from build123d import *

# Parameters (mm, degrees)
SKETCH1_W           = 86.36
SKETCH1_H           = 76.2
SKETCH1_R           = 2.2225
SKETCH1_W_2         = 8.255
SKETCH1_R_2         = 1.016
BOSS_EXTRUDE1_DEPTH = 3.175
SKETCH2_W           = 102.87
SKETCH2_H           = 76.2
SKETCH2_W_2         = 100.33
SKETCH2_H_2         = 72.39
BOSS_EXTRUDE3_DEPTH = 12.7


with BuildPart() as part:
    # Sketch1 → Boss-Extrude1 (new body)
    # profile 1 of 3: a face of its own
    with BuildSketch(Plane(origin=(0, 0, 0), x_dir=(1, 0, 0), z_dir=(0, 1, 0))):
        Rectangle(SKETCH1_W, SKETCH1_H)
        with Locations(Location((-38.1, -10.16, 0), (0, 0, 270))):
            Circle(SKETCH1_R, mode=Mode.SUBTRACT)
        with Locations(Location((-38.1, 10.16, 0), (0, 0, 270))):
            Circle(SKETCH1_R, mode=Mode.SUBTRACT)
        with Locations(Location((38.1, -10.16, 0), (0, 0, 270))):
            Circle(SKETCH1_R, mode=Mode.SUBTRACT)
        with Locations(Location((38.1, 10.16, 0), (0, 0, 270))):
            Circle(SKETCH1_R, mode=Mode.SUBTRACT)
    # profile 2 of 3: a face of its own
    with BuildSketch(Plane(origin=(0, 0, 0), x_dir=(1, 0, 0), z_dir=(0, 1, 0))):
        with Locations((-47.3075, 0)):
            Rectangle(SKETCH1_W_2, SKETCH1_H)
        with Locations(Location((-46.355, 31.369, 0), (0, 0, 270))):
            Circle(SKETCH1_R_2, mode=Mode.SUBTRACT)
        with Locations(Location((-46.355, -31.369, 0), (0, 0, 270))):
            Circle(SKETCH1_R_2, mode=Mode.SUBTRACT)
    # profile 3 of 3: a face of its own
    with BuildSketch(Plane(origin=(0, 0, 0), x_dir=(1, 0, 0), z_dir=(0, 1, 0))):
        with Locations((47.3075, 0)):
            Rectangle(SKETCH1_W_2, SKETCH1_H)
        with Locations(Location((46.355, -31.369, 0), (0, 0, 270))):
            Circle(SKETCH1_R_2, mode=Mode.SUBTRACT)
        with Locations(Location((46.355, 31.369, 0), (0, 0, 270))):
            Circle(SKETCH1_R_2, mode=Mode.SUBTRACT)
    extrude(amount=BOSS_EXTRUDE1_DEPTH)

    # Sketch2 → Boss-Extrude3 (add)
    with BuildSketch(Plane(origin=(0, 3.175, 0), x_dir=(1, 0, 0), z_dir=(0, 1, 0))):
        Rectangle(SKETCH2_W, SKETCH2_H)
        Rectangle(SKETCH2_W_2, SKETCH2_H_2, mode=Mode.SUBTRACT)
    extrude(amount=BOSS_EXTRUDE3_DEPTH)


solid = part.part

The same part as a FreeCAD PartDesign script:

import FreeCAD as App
import Part
import Sketcher
Q = App.Units.Quantity


def add_polygon(sketch, points):
    """Adds a closed chain of lines whose ends are joined by coincident constraints."""
    first, n = sketch.GeometryCount, len(points)
    for a, b in zip(points, points[1:] + points[:1]):
        sketch.addGeometry(Part.LineSegment(App.Vector(*a, 0), App.Vector(*b, 0)), False)
    for i in range(n):
        sketch.addConstraint(Sketcher.Constraint("Coincident", first + i, 2, first + (i + 1) % n, 1))

doc = App.newDocument("Part")
params = doc.addObject("Spreadsheet::Sheet", "Params")
for row, (alias, value) in enumerate([
    ("sketch1_diameter", "0.08 in"),
    ("sketch1_height", "3 in"),
    ("sketch1_diameter2", "0.175 in"),
    ("sketch1_width", "4.05 in"),
    ("pad1_length", "0.125 in"),
    ("sketch2_height", "3 in"),
    ("sketch2_width", "4.05 in"),
    ("sketch2_height2", "2.85 in"),
    ("pad2_length", "0.5 in"),
], start=1):
    params.set(f"A{row}", alias)
    params.set(f"B{row}", "=" + value)
    params.setAlias(f"B{row}", alias)

body = doc.addObject("PartDesign::Body", "Body")

# Sketch on XZ plane
sketch1 = body.newObject("Sketcher::SketchObject", "Sketch")
sketch1.AttachmentSupport = (doc.getObject("XZ_Plane"), [""])
sketch1.MapMode = "FlatFace"
add_polygon(sketch1, [(51.4, 38.1), (51.4, -38.1), (-51.4, -38.1), (-51.4, 38.1)])  # lines 0-3
sketch1.addGeometry(Part.Circle(App.Vector(-38.1, 10.2, 0), App.Vector(0, 0, 1), 2.2), False)  # 4
sketch1.addGeometry(Part.Circle(App.Vector(38.1, 10.2, 0), App.Vector(0, 0, 1), 2.2), False)  # 5
sketch1.addGeometry(Part.Circle(App.Vector(-38.1, -10.2, 0), App.Vector(0, 0, 1), 2.2), False)  # 6
sketch1.addGeometry(Part.Circle(App.Vector(38.1, -10.2, 0), App.Vector(0, 0, 1), 2.2), False)  # 7
sketch1.addGeometry(Part.Circle(App.Vector(-46.4, -31.4, 0), App.Vector(0, 0, 1), 1), False)  # 8
sketch1.addGeometry(Part.Circle(App.Vector(-46.4, 31.4, 0), App.Vector(0, 0, 1), 1), False)  # 9
sketch1.addGeometry(Part.Circle(App.Vector(46.4, -31.4, 0), App.Vector(0, 0, 1), 1), False)  # 10
sketch1.addGeometry(Part.Circle(App.Vector(46.4, 31.4, 0), App.Vector(0, 0, 1), 1), False)  # 11
sketch1.addConstraint(Sketcher.Constraint("Vertical", 0))
sketch1.addConstraint(Sketcher.Constraint("Horizontal", 1))
sketch1.addConstraint(Sketcher.Constraint("Vertical", 2))
sketch1.addConstraint(Sketcher.Constraint("Horizontal", 3))
sketch1.addConstraint(Sketcher.Constraint("Equal", 4, 5))
sketch1.addConstraint(Sketcher.Constraint("Equal", 5, 6))
sketch1.addConstraint(Sketcher.Constraint("Equal", 6, 7))
sketch1.addConstraint(Sketcher.Constraint("Equal", 8, 9))
sketch1.addConstraint(Sketcher.Constraint("Equal", 9, 10))
sketch1.addConstraint(Sketcher.Constraint("Equal", 10, 11))
sketch1.addConstraint(Sketcher.Constraint("Symmetric", 5, 3, 6, 3, -1, 1))
sketch1.addConstraint(Sketcher.Constraint("Symmetric", 4, 3, 7, 3, -1, 1))
sketch1.addConstraint(Sketcher.Constraint("Symmetric", 9, 3, 10, 3, -1, 1))
sketch1.addConstraint(Sketcher.Constraint("Symmetric", 8, 3, 11, 3, -1, 1))
sketch1.addConstraint(Sketcher.Constraint("Symmetric", 0, 2, 2, 2, -1, 1))
sketch1.addConstraint(Sketcher.Constraint("Symmetric", 4, 3, 5, 3, -2))
sketch1.addConstraint(Sketcher.Constraint("Symmetric", 8, 3, 10, 3, -2))
sketch1.addConstraint(Sketcher.Constraint("Diameter", 8, Q("0.08 in")))
sketch1.addConstraint(Sketcher.Constraint("DistanceY", 0, 2, 0, 1, Q("3 in")))
sketch1.addConstraint(Sketcher.Constraint("Diameter", 4, Q("0.175 in")))
sketch1.addConstraint(Sketcher.Constraint("DistanceX", 4, 3, 5, 3, Q("3 in")))
sketch1.addConstraint(Sketcher.Constraint("DistanceX", 1, 2, 1, 1, Q("4.05 in")))
sketch1.addConstraint(Sketcher.Constraint("DistanceY", -1, 1, 4, 3, Q("0.4 in")))
sketch1.addConstraint(Sketcher.Constraint("DistanceX", 10, 3, 0, 2, Q("0.2 in")))
sketch1.addConstraint(Sketcher.Constraint("DistanceY", 8, 3, 9, 3, Q("2.47 in")))
sketch1.setExpression("Constraints[21]", "Params.sketch1_diameter")
sketch1.setExpression("Constraints[22]", "Params.sketch1_height")
sketch1.setExpression("Constraints[23]", "Params.sketch1_diameter2")
sketch1.setExpression("Constraints[25]", "Params.sketch1_width")
pad1 = body.newObject("PartDesign::Pad", "Pad")
pad1.Profile = sketch1
pad1.setExpression("Length", "Params.pad1_length")
pad1.Reversed = True

# Sketch on XZ plane
sketch2 = body.newObject("Sketcher::SketchObject", "Sketch001")
sketch2.AttachmentSupport = (doc.getObject("XZ_Plane"), [""])
sketch2.MapMode = "FlatFace"
sketch2.AttachmentOffset = App.Placement(App.Vector(0, 0, -0.125 * 25.4), App.Rotation())
add_polygon(sketch2, [(-51, -38), (-51, 38), (51, 38), (51, -38)])  # lines 0-3
add_polygon(sketch2, [(50, 36), (-50, 36), (-50, -36), (50, -36)])  # lines 4-7
sketch2.addConstraint(Sketcher.Constraint("Vertical", 0))
sketch2.addConstraint(Sketcher.Constraint("Horizontal", 1))
sketch2.addConstraint(Sketcher.Constraint("Vertical", 2))
sketch2.addConstraint(Sketcher.Constraint("Horizontal", 3))
sketch2.addConstraint(Sketcher.Constraint("Horizontal", 4))
sketch2.addConstraint(Sketcher.Constraint("Vertical", 5))
sketch2.addConstraint(Sketcher.Constraint("Horizontal", 6))
sketch2.addConstraint(Sketcher.Constraint("Vertical", 7))
sketch2.addConstraint(Sketcher.Constraint("Symmetric", 0, 2, 2, 2, -1, 1))
sketch2.addConstraint(Sketcher.Constraint("Symmetric", 4, 2, 6, 2, -1, 1))
sketch2.addConstraint(Sketcher.Constraint("DistanceY", 0, 1, 0, 2, Q("3 in")))
sketch2.addConstraint(Sketcher.Constraint("DistanceX", 4, 2, 1, 2, Q("4 in")))
sketch2.addConstraint(Sketcher.Constraint("DistanceX", 1, 1, 1, 2, Q("4.05 in")))
sketch2.addConstraint(Sketcher.Constraint("DistanceY", 5, 2, 5, 1, Q("2.85 in")))
sketch2.setExpression("Constraints[18]", "Params.sketch2_height")
sketch2.setExpression("Constraints[20]", "Params.sketch2_width")
sketch2.setExpression("Constraints[21]", "Params.sketch2_height2")
pad2 = body.newObject("PartDesign::Pad", "Pad001")
pad2.Profile = sketch2
pad2.setExpression("Length", "Params.pad2_length")
pad2.Reversed = True

doc.recompute()
